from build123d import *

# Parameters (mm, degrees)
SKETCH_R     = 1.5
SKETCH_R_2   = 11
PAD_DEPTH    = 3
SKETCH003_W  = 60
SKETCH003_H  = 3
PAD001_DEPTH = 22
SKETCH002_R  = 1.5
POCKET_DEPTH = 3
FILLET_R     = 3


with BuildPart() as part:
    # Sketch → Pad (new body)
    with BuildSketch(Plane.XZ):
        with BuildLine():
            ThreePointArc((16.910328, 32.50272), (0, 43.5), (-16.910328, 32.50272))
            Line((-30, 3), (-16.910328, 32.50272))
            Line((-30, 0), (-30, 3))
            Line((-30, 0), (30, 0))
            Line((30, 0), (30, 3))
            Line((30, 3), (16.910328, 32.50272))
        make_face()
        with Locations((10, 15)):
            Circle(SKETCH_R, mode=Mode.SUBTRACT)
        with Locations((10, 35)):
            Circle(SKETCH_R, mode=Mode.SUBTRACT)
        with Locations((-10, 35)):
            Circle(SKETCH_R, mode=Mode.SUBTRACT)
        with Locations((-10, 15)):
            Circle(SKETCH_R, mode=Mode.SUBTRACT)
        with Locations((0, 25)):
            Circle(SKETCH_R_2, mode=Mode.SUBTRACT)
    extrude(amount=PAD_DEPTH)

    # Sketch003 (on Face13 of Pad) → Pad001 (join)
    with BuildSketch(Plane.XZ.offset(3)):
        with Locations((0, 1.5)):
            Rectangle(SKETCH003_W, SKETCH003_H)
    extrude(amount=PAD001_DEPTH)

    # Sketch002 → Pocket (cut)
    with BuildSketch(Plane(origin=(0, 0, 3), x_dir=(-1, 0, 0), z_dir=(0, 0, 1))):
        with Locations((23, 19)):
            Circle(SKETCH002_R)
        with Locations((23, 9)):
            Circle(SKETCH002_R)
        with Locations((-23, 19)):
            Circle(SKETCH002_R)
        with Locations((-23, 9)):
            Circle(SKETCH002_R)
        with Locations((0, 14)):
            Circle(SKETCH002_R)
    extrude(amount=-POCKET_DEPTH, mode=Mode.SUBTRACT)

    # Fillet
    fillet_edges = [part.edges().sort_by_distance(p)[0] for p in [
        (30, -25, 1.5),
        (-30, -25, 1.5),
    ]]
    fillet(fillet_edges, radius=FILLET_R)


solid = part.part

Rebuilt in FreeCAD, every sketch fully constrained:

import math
import FreeCAD as App
import Part
import Sketcher
Q = App.Units.Quantity


def edges_at(feature, points):
    """Names of the edges that pass closest to the given points."""
    edges = feature.Shape.Edges
    near = lambda p: min(range(len(edges)), key=lambda i: edges[i].distToShape(Part.Vertex(*p))[0])
    return sorted({f"Edge{near(p) + 1}" for p in points})

doc = App.newDocument("Part")
body = doc.addObject("PartDesign::Body", "Body")

# Sketch on XZ plane
sketch1 = body.newObject("Sketcher::SketchObject", "Sketch")
sketch1.AttachmentSupport = (doc.getObject("XZ_Plane"), [""])
sketch1.MapMode = "FlatFace"
sketch1.addGeometry([
    Part.ArcOfCircle(Part.Circle(App.Vector(0, 25, 0), App.Vector(0, 0, 1), 18.5), math.radians(23.92575), math.radians(156.07425)),  # 0
    Part.LineSegment(App.Vector(-16.910328, 32.50272, 0), App.Vector(-30, 3, 0)),  # 1
    Part.LineSegment(App.Vector(-30, 3, 0), App.Vector(-30, 0, 0)),  # 2
    Part.LineSegment(App.Vector(-30, 0, 0), App.Vector(30, 0, 0)),  # 3
    Part.LineSegment(App.Vector(30, 0, 0), App.Vector(30, 3, 0)),  # 4
    Part.LineSegment(App.Vector(30, 3, 0), App.Vector(16.910328, 32.50272, 0)),  # 5
    Part.Circle(App.Vector(-10, 15, 0), App.Vector(0, 0, 1), 1.5),  # 6
    Part.Circle(App.Vector(10, 15, 0), App.Vector(0, 0, 1), 1.5),  # 7
    Part.Circle(App.Vector(-10, 35, 0), App.Vector(0, 0, 1), 1.5),  # 8
    Part.Circle(App.Vector(0, 25, 0), App.Vector(0, 0, 1), 11),  # 9
    Part.Circle(App.Vector(10, 35, 0), App.Vector(0, 0, 1), 1.5),  # 10
], False)
sketch1.addConstraint([
    Sketcher.Constraint("Tangent", 0, 2, 1, 1),
    Sketcher.Constraint("Coincident", 1, 2, 2, 1),
    Sketcher.Constraint("Coincident", 2, 2, 3, 1),
    Sketcher.Constraint("Coincident", 3, 2, 4, 1),
    Sketcher.Constraint("Coincident", 4, 2, 5, 1),
    Sketcher.Constraint("Tangent", 5, 2, 0, 1),
    Sketcher.Constraint("Vertical", 2),
    Sketcher.Constraint("Horizontal", 3),
    Sketcher.Constraint("Vertical", 4),
    Sketcher.Constraint("Coincident", 9, 3, 0, 3),
    Sketcher.Constraint("Equal", 6, 7),
    Sketcher.Constraint("Equal", 7, 8),
    Sketcher.Constraint("Equal", 8, 10),
    Sketcher.Constraint("Symmetric", 2, 2, 3, 2, -1, 1),
    Sketcher.Constraint("Symmetric", 6, 3, 7, 3, -2),
    Sketcher.Constraint("Symmetric", 8, 3, 10, 3, -2),
    Sketcher.Constraint("Symmetric", 0, 2, 5, 2, -2),
    Sketcher.Constraint("Vertical", 6, 3, 8, 3),
    Sketcher.Constraint("Diameter", 6, Q("3 mm")),
    Sketcher.Constraint("Diameter", 9, Q("22 mm")),
    Sketcher.Constraint("Radius", 0, Q("18.5 mm")),
    Sketcher.Constraint("DistanceX", 3, 1, 3, 2, Q("60 mm")),
    Sketcher.Constraint("DistanceY", 2, 2, 2, 1, Q("3 mm")),
    Sketcher.Constraint("DistanceY", -1, 1, 0, 3, Q("25 mm")),
    Sketcher.Constraint("DistanceX", 6, 3, -1, 1, Q("10 mm")),
    Sketcher.Constraint("DistanceY", -1, 1, 6, 3, Q("15 mm")),
    Sketcher.Constraint("DistanceY", -1, 1, 8, 3, Q("35 mm")),
])
pad1 = body.newObject("PartDesign::Pad", "Pad")
pad1.Profile = sketch1
pad1.Length = 3

# Sketch on XZ plane
sketch2 = body.newObject("Sketcher::SketchObject", "Sketch001")
sketch2.AttachmentSupport = (doc.getObject("XZ_Plane"), [""])
sketch2.MapMode = "FlatFace"
sketch2.AttachmentOffset = App.Placement(App.Vector(0, 0, 3), App.Rotation())
sketch2.addGeometry([
    Part.LineSegment(App.Vector(-30, 3, 0), App.Vector(-30, 0, 0)),
    Part.LineSegment(App.Vector(-30, 0, 0), App.Vector(30, 0, 0)),
    Part.LineSegment(App.Vector(30, 0, 0), App.Vector(30, 3, 0)),
    Part.LineSegment(App.Vector(30, 3, 0), App.Vector(-30, 3, 0)),
], False)
sketch2.addConstraint([
    Sketcher.Constraint("Coincident", 0, 2, 1, 1),
    Sketcher.Constraint("Coincident", 1, 2, 2, 1),
    Sketcher.Constraint("Coincident", 2, 2, 3, 1),
    Sketcher.Constraint("Coincident", 3, 2, 0, 1),
    Sketcher.Constraint("Vertical", 0),
    Sketcher.Constraint("Horizontal", 1),
    Sketcher.Constraint("Vertical", 2),
    Sketcher.Constraint("Horizontal", 3),
    Sketcher.Constraint("Symmetric", 0, 2, 1, 2, -1, 1),
    Sketcher.Constraint("DistanceX", 1, 1, 1, 2, Q("60 mm")),
    Sketcher.Constraint("DistanceY", 0, 2, 0, 1, Q("3 mm")),
])
pad2 = body.newObject("PartDesign::Pad", "Pad001")
pad2.Profile = sketch2
pad2.Length = 22

# Sketch on XY plane
sketch3 = body.newObject("Sketcher::SketchObject", "Sketch002")
sketch3.AttachmentSupport = (doc.getObject("XY_Plane"), [""])
sketch3.MapMode = "FlatFace"
sketch3.AttachmentOffset = App.Placement(App.Vector(0, 0, 3), App.Rotation())
sketch3.addGeometry([
    Part.Circle(App.Vector(-23, -19, 0), App.Vector(0, 0, 1), 1.5),  # 0
    Part.Circle(App.Vector(-23, -9, 0), App.Vector(0, 0, 1), 1.5),  # 1
    Part.Circle(App.Vector(23, -19, 0), App.Vector(0, 0, 1), 1.5),  # 2
    Part.Circle(App.Vector(23, -9, 0), App.Vector(0, 0, 1), 1.5),  # 3
    Part.Circle(App.Vector(0, -14, 0), App.Vector(0, 0, 1), 1.5),  # 4
], False)
sketch3.addConstraint([
    Sketcher.Constraint("Equal", 0, 1),
    Sketcher.Constraint("Equal", 1, 2),
    Sketcher.Constraint("Equal", 2, 3),
    Sketcher.Constraint("Equal", 3, 4),
    Sketcher.Constraint("Symmetric", 0, 3, 2, 3, -2),
    Sketcher.Constraint("Symmetric", 1, 3, 3, 3, -2),
    Sketcher.Constraint("PointOnObject", 4, 3, -2),
    Sketcher.Constraint("Vertical", 0, 3, 1, 3),
    Sketcher.Constraint("Diameter", 0, Q("3 mm")),
    Sketcher.Constraint("DistanceX", 0, 3, -1, 1, Q("23 mm")),
    Sketcher.Constraint("DistanceY", 0, 3, -1, 1, Q("19 mm")),
    Sketcher.Constraint("DistanceY", 1, 3, -1, 1, Q("9 mm")),
    Sketcher.Constraint("DistanceY", 4, 3, -1, 1, Q("14 mm")),
])
pocket1 = body.newObject("PartDesign::Pocket", "Pocket")
pocket1.Profile = sketch3
pocket1.Length = 3
doc.recompute()

fillet = body.newObject("PartDesign::Fillet", "Fillet")
fillet.Base = (pocket1, edges_at(pocket1, [(30, -25, 1.5), (-30, -25, 1.5)]))
fillet.Radius = 3

doc.recompute()
